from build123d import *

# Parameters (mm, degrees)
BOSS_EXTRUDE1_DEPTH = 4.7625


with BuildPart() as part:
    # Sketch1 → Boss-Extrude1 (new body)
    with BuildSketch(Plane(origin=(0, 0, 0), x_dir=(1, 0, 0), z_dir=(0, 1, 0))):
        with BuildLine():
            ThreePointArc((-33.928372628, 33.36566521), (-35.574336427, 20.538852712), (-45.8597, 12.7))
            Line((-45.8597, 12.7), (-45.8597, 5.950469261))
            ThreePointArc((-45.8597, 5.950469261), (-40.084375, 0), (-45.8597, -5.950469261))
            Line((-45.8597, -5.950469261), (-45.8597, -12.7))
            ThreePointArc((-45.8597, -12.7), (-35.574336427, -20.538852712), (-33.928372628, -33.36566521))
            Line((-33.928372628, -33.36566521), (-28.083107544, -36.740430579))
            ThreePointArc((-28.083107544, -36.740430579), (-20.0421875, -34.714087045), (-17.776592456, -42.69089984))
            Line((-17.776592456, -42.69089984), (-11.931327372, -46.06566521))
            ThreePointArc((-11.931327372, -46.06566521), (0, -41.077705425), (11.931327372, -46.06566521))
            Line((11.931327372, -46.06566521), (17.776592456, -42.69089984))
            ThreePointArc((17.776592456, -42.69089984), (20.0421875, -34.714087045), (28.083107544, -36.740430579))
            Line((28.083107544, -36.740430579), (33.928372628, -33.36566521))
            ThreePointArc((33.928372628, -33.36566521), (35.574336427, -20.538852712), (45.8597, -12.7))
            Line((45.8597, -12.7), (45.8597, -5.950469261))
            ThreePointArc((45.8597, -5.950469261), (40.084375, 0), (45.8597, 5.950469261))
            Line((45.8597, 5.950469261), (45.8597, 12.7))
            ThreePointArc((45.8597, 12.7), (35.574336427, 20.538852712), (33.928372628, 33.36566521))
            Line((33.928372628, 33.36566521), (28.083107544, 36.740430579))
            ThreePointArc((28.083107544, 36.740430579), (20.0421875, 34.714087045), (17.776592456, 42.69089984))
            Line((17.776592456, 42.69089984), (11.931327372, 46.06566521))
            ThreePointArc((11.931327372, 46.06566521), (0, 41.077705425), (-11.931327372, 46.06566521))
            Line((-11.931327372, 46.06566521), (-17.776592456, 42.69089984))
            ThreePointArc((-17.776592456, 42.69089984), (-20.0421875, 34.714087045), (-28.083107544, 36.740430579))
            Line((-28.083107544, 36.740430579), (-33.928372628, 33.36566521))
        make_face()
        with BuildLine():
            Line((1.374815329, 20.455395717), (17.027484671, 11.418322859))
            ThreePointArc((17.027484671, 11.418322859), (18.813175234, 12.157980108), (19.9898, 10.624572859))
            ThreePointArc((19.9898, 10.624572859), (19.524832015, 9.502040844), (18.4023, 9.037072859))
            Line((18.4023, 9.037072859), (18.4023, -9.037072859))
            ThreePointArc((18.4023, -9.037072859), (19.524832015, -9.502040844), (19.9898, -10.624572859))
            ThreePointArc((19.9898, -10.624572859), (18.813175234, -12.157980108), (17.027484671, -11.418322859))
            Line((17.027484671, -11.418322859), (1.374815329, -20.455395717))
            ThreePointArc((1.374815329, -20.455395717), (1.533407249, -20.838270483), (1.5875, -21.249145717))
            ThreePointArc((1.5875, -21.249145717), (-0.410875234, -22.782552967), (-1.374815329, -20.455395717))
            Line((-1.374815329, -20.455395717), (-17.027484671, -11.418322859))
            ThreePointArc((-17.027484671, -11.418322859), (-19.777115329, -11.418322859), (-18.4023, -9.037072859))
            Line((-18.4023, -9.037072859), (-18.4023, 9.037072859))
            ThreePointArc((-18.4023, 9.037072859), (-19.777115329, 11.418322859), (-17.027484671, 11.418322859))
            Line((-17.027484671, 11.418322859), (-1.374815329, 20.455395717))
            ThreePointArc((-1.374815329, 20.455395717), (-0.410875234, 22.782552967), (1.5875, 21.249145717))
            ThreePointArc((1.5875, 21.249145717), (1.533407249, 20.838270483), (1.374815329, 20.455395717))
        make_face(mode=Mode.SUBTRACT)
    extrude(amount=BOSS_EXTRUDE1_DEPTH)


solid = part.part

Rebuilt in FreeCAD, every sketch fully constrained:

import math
import FreeCAD as App
import Part
import Sketcher

V = App.Vector
Q = App.Units.Quantity

doc = App.newDocument("Part")
params = doc.addObject("Spreadsheet::Sheet", "Params")
for row, (alias, value) in enumerate([
    ("sketch1_radius", "0.66 in"),
    ("sketch1_radius2", "0.234375 in"),
    ("sketch1_radius3", "0.0625 in"),
    ("pad1_length", "0.1875 in"),
], start=1):
    params.set(f"A{row}", alias)
    params.set(f"B{row}", "=" + value)
    params.setAlias(f"B{row}", alias)

body = doc.addObject("PartDesign::Body", "Body")

# Sketch on XZ plane
sketch1 = doc.addObject("Sketcher::SketchObject", "Sketch")
body.addObject(sketch1)
sketch1.AttachmentSupport = (doc.XZ_Plane, [""])
sketch1.MapMode = "FlatFace"
sketch1.addGeometry(Part.ArcOfCircle(Part.Circle(V(-50.1, -28.9, 0), V(0, 0, 1), 16.8), math.radians(-15), math.radians(75)), False)
sketch1.addGeometry(Part.LineSegment(V(-45.9, -12.7, 0), V(-45.9, -6, 0)), False)
sketch1.addGeometry(Part.ArcOfCircle(Part.Circle(V(-46, 0, 0), V(0, 0, 1), 6), math.radians(-88), math.radians(88)), False)
sketch1.addGeometry(Part.LineSegment(V(-45.9, 6, 0), V(-45.9, 12.7, 0)), False)
sketch1.addGeometry(Part.ArcOfCircle(Part.Circle(V(-50.1, 28.9, 0), V(0, 0, 1), 16.8), math.radians(-75), math.radians(15)), False)
sketch1.addGeometry(Part.LineSegment(V(-33.9, 33.4, 0), V(-28.1, 36.7, 0)), False)
sketch1.addGeometry(Part.ArcOfCircle(Part.Circle(V(-23, 39.9, 0), V(0, 0, 1), 6), math.radians(-148), math.radians(28)), False)
sketch1.addGeometry(Part.LineSegment(V(-17.8, 42.7, 0), V(-11.9, 46.1, 0)), False)
sketch1.addGeometry(Part.ArcOfCircle(Part.Circle(V(0, 57.8, 0), V(0, 0, 1), 16.8), math.radians(-135), math.radians(-45)), False)
sketch1.addGeometry(Part.LineSegment(V(11.9, 46.1, 0), V(17.8, 42.7, 0)), False)
sketch1.addGeometry(Part.ArcOfCircle(Part.Circle(V(23, 39.9, 0), V(0, 0, 1), 6), math.radians(152), math.radians(328)), False)
sketch1.addGeometry(Part.LineSegment(V(28.1, 36.7, 0), V(33.9, 33.4, 0)), False)
sketch1.addGeometry(Part.ArcOfCircle(Part.Circle(V(50.1, 28.9, 0), V(0, 0, 1), 16.8), math.radians(165), math.radians(255)), False)
sketch1.addGeometry(Part.LineSegment(V(45.9, 12.7, 0), V(45.9, 6, 0)), False)
sketch1.addGeometry(Part.ArcOfCircle(Part.Circle(V(46, 0, 0), V(0, 0, 1), 6), math.radians(92), math.radians(268)), False)
sketch1.addGeometry(Part.LineSegment(V(45.9, -6, 0), V(45.9, -12.7, 0)), False)
sketch1.addGeometry(Part.ArcOfCircle(Part.Circle(V(50.1, -28.9, 0), V(0, 0, 1), 16.8), math.radians(105), math.radians(195)), False)
sketch1.addGeometry(Part.LineSegment(V(33.9, -33.4, 0), V(28.1, -36.7, 0)), False)
sketch1.addGeometry(Part.ArcOfCircle(Part.Circle(V(23, -39.9, 0), V(0, 0, 1), 6), math.radians(32), math.radians(208)), False)
sketch1.addGeometry(Part.LineSegment(V(17.8, -42.7, 0), V(11.9, -46.1, 0)), False)
sketch1.addGeometry(Part.ArcOfCircle(Part.Circle(V(0, -57.8, 0), V(0, 0, 1), 16.8), math.radians(45), math.radians(135)), False)
sketch1.addGeometry(Part.LineSegment(V(-11.9, -46.1, 0), V(-17.8, -42.7, 0)), False)
sketch1.addGeometry(Part.ArcOfCircle(Part.Circle(V(-23, -39.9, 0), V(0, 0, 1), 6), math.radians(-28), math.radians(148)), False)
sketch1.addGeometry(Part.LineSegment(V(-28.1, -36.7, 0), V(-33.9, -33.4, 0)), False)
sketch1.addGeometry(Part.ArcOfCircle(Part.Circle(V(0, -21.2, 0), V(0, 0, 1), 1.6), math.radians(0), math.radians(30)), False)
sketch1.addGeometry(Part.LineSegment(V(1.4, -20.5, 0), V(17, -11.4, 0)), False)
sketch1.addGeometry(Part.ArcOfCircle(Part.Circle(V(18.4, -10.6, 0), V(0, 0, 1), 1.6), math.radians(-150), math.radians(0)), False)
sketch1.addGeometry(Part.ArcOfCircle(Part.Circle(V(18.4, -10.6, 0), V(0, 0, 1), 1.6), math.radians(0), math.radians(90)), False)
sketch1.addGeometry(Part.LineSegment(V(18.4, -9, 0), V(18.4, 9, 0)), False)
sketch1.addGeometry(Part.ArcOfCircle(Part.Circle(V(18.4, 10.6, 0), V(0, 0, 1), 1.6), math.radians(-90), math.radians(0)), False)
sketch1.addGeometry(Part.ArcOfCircle(Part.Circle(V(18.4, 10.6, 0), V(0, 0, 1), 1.6), math.radians(0), math.radians(150)), False)
sketch1.addGeometry(Part.LineSegment(V(17, 11.4, 0), V(1.4, 20.5, 0)), False)
sketch1.addGeometry(Part.ArcOfCircle(Part.Circle(V(0, 21.2, 0), V(0, 0, 1), 1.6), math.radians(-30), math.radians(0)), False)
sketch1.addGeometry(Part.ArcOfCircle(Part.Circle(V(0, 21.2, 0), V(0, 0, 1), 1.6), math.radians(0), math.radians(210)), False)
sketch1.addGeometry(Part.LineSegment(V(-1.4, 20.5, 0), V(-17, 11.4, 0)), False)
sketch1.addGeometry(Part.ArcOfCircle(Part.Circle(V(-18.4, 10.6, 0), V(0, 0, 1), 1.6), math.radians(30), math.radians(270)), False)
sketch1.addGeometry(Part.LineSegment(V(-18.4, 9, 0), V(-18.4, -9, 0)), False)
sketch1.addGeometry(Part.ArcOfCircle(Part.Circle(V(-18.4, -10.6, 0), V(0, 0, 1), 1.6), math.radians(90), math.radians(330)), False)
sketch1.addGeometry(Part.LineSegment(V(-17, -11.4, 0), V(-1.4, -20.5, 0)), False)
sketch1.addGeometry(Part.ArcOfCircle(Part.Circle(V(0, -21.2, 0), V(0, 0, 1), 1.6), math.radians(150), math.radians(360)), False)
sketch1.addConstraint(Sketcher.Constraint("Coincident", 0, 2, 1, 1))
sketch1.addConstraint(Sketcher.Constraint("Coincident", 1, 2, 2, 1))
sketch1.addConstraint(Sketcher.Constraint("Coincident", 2, 2, 3, 1))
sketch1.addConstraint(Sketcher.Constraint("Coincident", 3, 2, 4, 1))
sketch1.addConstraint(Sketcher.Constraint("Coincident", 4, 2, 5, 1))
sketch1.addConstraint(Sketcher.Constraint("Coincident", 5, 2, 6, 1))
sketch1.addConstraint(Sketcher.Constraint("Coincident", 6, 2, 7, 1))
sketch1.addConstraint(Sketcher.Constraint("Coincident", 7, 2, 8, 1))
sketch1.addConstraint(Sketcher.Constraint("Coincident", 8, 2, 9, 1))
sketch1.addConstraint(Sketcher.Constraint("Coincident", 9, 2, 10, 1))
sketch1.addConstraint(Sketcher.Constraint("Coincident", 10, 2, 11, 1))
sketch1.addConstraint(Sketcher.Constraint("Coincident", 11, 2, 12, 1))
sketch1.addConstraint(Sketcher.Constraint("Coincident", 12, 2, 13, 1))
sketch1.addConstraint(Sketcher.Constraint("Coincident", 13, 2, 14, 1))
sketch1.addConstraint(Sketcher.Constraint("Coincident", 14, 2, 15, 1))
sketch1.addConstraint(Sketcher.Constraint("Coincident", 15, 2, 16, 1))
sketch1.addConstraint(Sketcher.Constraint("Coincident", 16, 2, 17, 1))
sketch1.addConstraint(Sketcher.Constraint("Coincident", 17, 2, 18, 1))
sketch1.addConstraint(Sketcher.Constraint("Coincident", 18, 2, 19, 1))
sketch1.addConstraint(Sketcher.Constraint("Coincident", 19, 2, 20, 1))
sketch1.addConstraint(Sketcher.Constraint("Coincident", 20, 2, 21, 1))
sketch1.addConstraint(Sketcher.Constraint("Coincident", 21, 2, 22, 1))
sketch1.addConstraint(Sketcher.Constraint("Coincident", 22, 2, 23, 1))
sketch1.addConstraint(Sketcher.Constraint("Coincident", 23, 2, 0, 1))
sketch1.addConstraint(Sketcher.Constraint("Coincident", 24, 2, 25, 1))
sketch1.addConstraint(Sketcher.Constraint("Coincident", 25, 2, 26, 1))
sketch1.addConstraint(Sketcher.Constraint("Tangent", 26, 2, 27, 1))
sketch1.addConstraint(Sketcher.Constraint("Coincident", 27, 2, 28, 1))
sketch1.addConstraint(Sketcher.Constraint("Coincident", 28, 2, 29, 1))
sketch1.addConstraint(Sketcher.Constraint("Tangent", 29, 2, 30, 1))
sketch1.addConstraint(Sketcher.Constraint("Coincident", 30, 2, 31, 1))
sketch1.addConstraint(Sketcher.Constraint("Coincident", 31, 2, 32, 1))
sketch1.addConstraint(Sketcher.Constraint("Tangent", 32, 2, 33, 1))
sketch1.addConstraint(Sketcher.Constraint("Coincident", 33, 2, 34, 1))
sketch1.addConstraint(Sketcher.Constraint("Coincident", 34, 2, 35, 1))
sketch1.addConstraint(Sketcher.Constraint("Coincident", 35, 2, 36, 1))
sketch1.addConstraint(Sketcher.Constraint("Coincident", 36, 2, 37, 1))
sketch1.addConstraint(Sketcher.Constraint("Coincident", 37, 2, 38, 1))
sketch1.addConstraint(Sketcher.Constraint("Coincident", 38, 2, 39, 1))
sketch1.addConstraint(Sketcher.Constraint("Tangent", 39, 2, 24, 1))
sketch1.addConstraint(Sketcher.Constraint("Vertical", 1))
sketch1.addConstraint(Sketcher.Constraint("Vertical", 3))
sketch1.addConstraint(Sketcher.Constraint("Vertical", 13))
sketch1.addConstraint(Sketcher.Constraint("Vertical", 15))
sketch1.addConstraint(Sketcher.Constraint("Vertical", 28))
sketch1.addConstraint(Sketcher.Constraint("Vertical", 36))
sketch1.addConstraint(Sketcher.Constraint("Equal", 0, 4))
sketch1.addConstraint(Sketcher.Constraint("Equal", 2, 6))
sketch1.addConstraint(Sketcher.Constraint("Equal", 4, 8))
sketch1.addConstraint(Sketcher.Constraint("Equal", 6, 10))
sketch1.addConstraint(Sketcher.Constraint("Equal", 8, 12))
sketch1.addConstraint(Sketcher.Constraint("Equal", 10, 14))
sketch1.addConstraint(Sketcher.Constraint("Equal", 12, 16))
sketch1.addConstraint(Sketcher.Constraint("Equal", 14, 18))
sketch1.addConstraint(Sketcher.Constraint("Equal", 16, 20))
sketch1.addConstraint(Sketcher.Constraint("Equal", 18, 22))
sketch1.addConstraint(Sketcher.Constraint("Equal", 24, 26))
sketch1.addConstraint(Sketcher.Constraint("Equal", 26, 27))
sketch1.addConstraint(Sketcher.Constraint("Equal", 27, 29))
sketch1.addConstraint(Sketcher.Constraint("Equal", 29, 30))
sketch1.addConstraint(Sketcher.Constraint("Equal", 30, 32))
sketch1.addConstraint(Sketcher.Constraint("Equal", 32, 33))
sketch1.addConstraint(Sketcher.Constraint("Equal", 33, 35))
sketch1.addConstraint(Sketcher.Constraint("Equal", 35, 37))
sketch1.addConstraint(Sketcher.Constraint("Equal", 37, 39))
sketch1.addConstraint(Sketcher.Constraint("Symmetric", 0, 3, 12, 3, -1, 1))
sketch1.addConstraint(Sketcher.Constraint("Symmetric", 2, 3, 14, 3, -1, 1))
sketch1.addConstraint(Sketcher.Constraint("Symmetric", 4, 3, 16, 3, -1, 1))
sketch1.addConstraint(Sketcher.Constraint("Symmetric", 6, 3, 18, 3, -1, 1))
sketch1.addConstraint(Sketcher.Constraint("Symmetric", 8, 3, 20, 3, -1, 1))
sketch1.addConstraint(Sketcher.Constraint("Symmetric", 10, 3, 22, 3, -1, 1))
sketch1.addConstraint(Sketcher.Constraint("Symmetric", 24, 3, 32, 3, -1, 1))
sketch1.addConstraint(Sketcher.Constraint("Symmetric", 26, 3, 35, 3, -1, 1))
sketch1.addConstraint(Sketcher.Constraint("Symmetric", 29, 3, 37, 3, -1, 1))
sketch1.addConstraint(Sketcher.Constraint("Symmetric", 6, 3, 10, 3, -2))
sketch1.addConstraint(Sketcher.Constraint("Symmetric", 4, 3, 12, 3, -2))
sketch1.addConstraint(Sketcher.Constraint("Symmetric", 29, 3, 35, 3, -2))
sketch1.addConstraint(Sketcher.Constraint("Symmetric", 7, 2, 8, 2, -2))
sketch1.addConstraint(Sketcher.Constraint("Symmetric", 2, 2, 13, 2, -2))
sketch1.addConstraint(Sketcher.Constraint("Symmetric", 31, 2, 33, 2, -2))
sketch1.addConstraint(Sketcher.Constraint("Parallel", 5, 7))
sketch1.addConstraint(Sketcher.Constraint("Parallel", 9, 11))
sketch1.addConstraint(Sketcher.Constraint("Parallel", 7, 17))
sketch1.addConstraint(Sketcher.Constraint("Parallel", 17, 19))
sketch1.addConstraint(Sketcher.Constraint("Parallel", 11, 21))
sketch1.addConstraint(Sketcher.Constraint("Parallel", 21, 23))
sketch1.addConstraint(Sketcher.Constraint("Parallel", 19, 25))
sketch1.addConstraint(Sketcher.Constraint("Parallel", 23, 31))
sketch1.addConstraint(Sketcher.Constraint("Parallel", 25, 34))
sketch1.addConstraint(Sketcher.Constraint("Parallel", 31, 38))
sketch1.addConstraint(Sketcher.Constraint("Horizontal", 6, 2, 9, 2))
sketch1.addConstraint(Sketcher.Constraint("Horizontal", 5, 2, 10, 2))
sketch1.addConstraint(Sketcher.Constraint("Horizontal", 1, 2, 14, 2))
sketch1.addConstraint(Sketcher.Constraint("Horizontal", 19, 2, 20, 2))
sketch1.addConstraint(Sketcher.Constraint("Horizontal", 17, 2, 22, 2))
sketch1.addConstraint(Sketcher.Constraint("Horizontal", 37, 3, 26, 2))
sketch1.addConstraint(Sketcher.Constraint("Horizontal", 35, 3, 29, 2))
sketch1.addConstraint(Sketcher.Constraint("Horizontal", 33, 3, 32, 2))
sketch1.addConstraint(Sketcher.Constraint("Horizontal", 25, 2, 37, 2))
sketch1.addConstraint(Sketcher.Constraint("Horizontal", 24, 3, 39, 2))
sketch1.addConstraint(Sketcher.Constraint("Vertical", 1, 2, 2, 2))
sketch1.addConstraint(Sketcher.Constraint("Vertical", 11, 2, 16, 2))
sketch1.addConstraint(Sketcher.Constraint("Vertical", 9, 2, 18, 2))
sketch1.addConstraint(Sketcher.Constraint("Vertical", 30, 3, 27, 2))
sketch1.addConstraint(Sketcher.Constraint("Vertical", 25, 2, 30, 2))
sketch1.addConstraint(Sketcher.Constraint("Vertical", 37, 3, 35, 2))
sketch1.addConstraint(Sketcher.Constraint("Equal", 5, 7))
sketch1.addConstraint(Sketcher.Constraint("Radius", 0, Q("0.66 in")))
sketch1.addConstraint(Sketcher.Constraint("Angle", 5, Q("30 deg")))
sketch1.addConstraint(Sketcher.Constraint("Radius", 2, Q("0.234375 in")))
sketch1.addConstraint(Sketcher.Constraint("Radius", 24, Q("0.0625 in")))
sketch1.addConstraint(Sketcher.Constraint("DistanceY", 0, 2, -1, 1, Q("0.5 in")))
sketch1.addConstraint(Sketcher.Constraint("DistanceX", 2, 3, -1, 1, Q("1.8125 in")))
sketch1.addConstraint(Sketcher.Constraint("DistanceX", 6, 3, -1, 1, Q("0.90625 in")))
sketch1.addConstraint(Sketcher.Constraint("DistanceX", -1, 1, 26, 2, Q("0.787 in")))
sketch1.addConstraint(Sketcher.Constraint("DistanceX", 0, 2, -1, 1, Q("1.8055 in")))
sketch1.addConstraint(Sketcher.Constraint("DistanceY", -1, 1, 6, 2, 42.6909))
sketch1.addConstraint(Sketcher.Constraint("Distance", 5, 6.749531))
sketch1.addConstraint(Sketcher.Constraint("DistanceY", 28, 1, 28, 2, 18.074146))
sketch1.addConstraint(Sketcher.Constraint("DistanceY", -1, 1, 5, 2, 36.740431))
sketch1.addConstraint(Sketcher.Constraint("Distance", 25, 18.074146))
sketch1.addConstraint(Sketcher.Constraint("DistanceX", 0, 3, -1, 1, 50.092386))
sketch1.addConstraint(Sketcher.Constraint("DistanceX", -1, 1, 24, 2, 1.374815))
sketch1.setExpression("Constraints[107]", "Params.sketch1_radius")
sketch1.setExpression("Constraints[109]", "Params.sketch1_radius2")
sketch1.setExpression("Constraints[110]", "Params.sketch1_radius3")
pad1 = doc.addObject("PartDesign::Pad", "Pad")
body.addObject(pad1)
pad1.Profile = sketch1
pad1.setExpression("Length", "Params.pad1_length")
pad1.Reversed = True

doc.recompute()
